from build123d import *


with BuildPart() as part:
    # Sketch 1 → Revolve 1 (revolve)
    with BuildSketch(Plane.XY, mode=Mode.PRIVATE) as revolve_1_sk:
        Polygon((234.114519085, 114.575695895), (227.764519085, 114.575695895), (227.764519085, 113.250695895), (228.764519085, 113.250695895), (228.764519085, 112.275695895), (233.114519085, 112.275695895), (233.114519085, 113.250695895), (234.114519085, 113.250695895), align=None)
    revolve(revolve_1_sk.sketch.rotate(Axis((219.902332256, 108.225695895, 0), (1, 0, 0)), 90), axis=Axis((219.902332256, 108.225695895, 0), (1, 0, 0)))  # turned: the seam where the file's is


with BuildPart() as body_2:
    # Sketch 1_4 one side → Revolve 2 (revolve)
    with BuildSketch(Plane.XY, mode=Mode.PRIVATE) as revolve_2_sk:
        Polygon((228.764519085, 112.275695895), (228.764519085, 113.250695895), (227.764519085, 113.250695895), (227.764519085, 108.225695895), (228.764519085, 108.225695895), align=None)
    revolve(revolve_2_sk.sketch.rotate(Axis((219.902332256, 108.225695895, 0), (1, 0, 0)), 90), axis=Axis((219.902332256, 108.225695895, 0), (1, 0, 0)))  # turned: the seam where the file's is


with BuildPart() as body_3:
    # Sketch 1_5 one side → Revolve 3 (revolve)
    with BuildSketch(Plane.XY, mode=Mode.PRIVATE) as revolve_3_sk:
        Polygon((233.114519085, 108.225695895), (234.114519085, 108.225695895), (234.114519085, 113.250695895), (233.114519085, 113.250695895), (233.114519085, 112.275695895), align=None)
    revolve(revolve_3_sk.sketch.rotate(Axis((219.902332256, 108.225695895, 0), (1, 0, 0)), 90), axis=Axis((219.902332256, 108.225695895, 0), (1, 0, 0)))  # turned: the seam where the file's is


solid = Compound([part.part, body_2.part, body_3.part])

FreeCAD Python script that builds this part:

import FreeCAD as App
import Part
import Sketcher
from FreeCAD import Vector
Q = App.Units.Quantity

doc = App.newDocument("Part")
body = doc.addObject("PartDesign::Body", "Body")

# Sketch on XY plane
sketch1 = body.newObject("Sketcher::SketchObject", "Sketch")
sketch1.AttachmentSupport = (doc.getObject("XY_Plane"), [""])
sketch1.MapMode = "FlatFace"
sketch1.addGeometry(Part.LineSegment(Vector(234.1, 114.6, 0), Vector(227.8, 114.6, 0)), False)
sketch1.addGeometry(Part.LineSegment(Vector(227.8, 114.6, 0), Vector(227.8, 113.3, 0)), False)
sketch1.addGeometry(Part.LineSegment(Vector(227.8, 113.3, 0), Vector(228.8, 113.3, 0)), False)
sketch1.addGeometry(Part.LineSegment(Vector(228.8, 113.3, 0), Vector(228.8, 112.3, 0)), False)
sketch1.addGeometry(Part.LineSegment(Vector(228.8, 112.3, 0), Vector(233.1, 112.3, 0)), False)
sketch1.addGeometry(Part.LineSegment(Vector(233.1, 112.3, 0), Vector(233.1, 113.3, 0)), False)
sketch1.addGeometry(Part.LineSegment(Vector(233.1, 113.3, 0), Vector(234.1, 113.3, 0)), False)
sketch1.addGeometry(Part.LineSegment(Vector(234.1, 113.3, 0), Vector(234.1, 114.6, 0)), False)
sketch1.addGeometry(Part.LineSegment(Vector(227.8, 108.2, 0), Vector(234.1, 108.2, 0)), True)  # axis
sketch1.addConstraint(Sketcher.Constraint("Coincident", 0, 2, 1, 1))
sketch1.addConstraint(Sketcher.Constraint("Coincident", 1, 2, 2, 1))
sketch1.addConstraint(Sketcher.Constraint("Coincident", 2, 2, 3, 1))
sketch1.addConstraint(Sketcher.Constraint("Coincident", 3, 2, 4, 1))
sketch1.addConstraint(Sketcher.Constraint("Coincident", 4, 2, 5, 1))
sketch1.addConstraint(Sketcher.Constraint("Coincident", 5, 2, 6, 1))
sketch1.addConstraint(Sketcher.Constraint("Coincident", 6, 2, 7, 1))
sketch1.addConstraint(Sketcher.Constraint("Coincident", 7, 2, 0, 1))
sketch1.addConstraint(Sketcher.Constraint("Horizontal", 0))
sketch1.addConstraint(Sketcher.Constraint("Vertical", 1))
sketch1.addConstraint(Sketcher.Constraint("Horizontal", 2))
sketch1.addConstraint(Sketcher.Constraint("Vertical", 3))
sketch1.addConstraint(Sketcher.Constraint("Horizontal", 4))
sketch1.addConstraint(Sketcher.Constraint("Vertical", 5))
sketch1.addConstraint(Sketcher.Constraint("Horizontal", 6))
sketch1.addConstraint(Sketcher.Constraint("Vertical", 7))
sketch1.addConstraint(Sketcher.Constraint("Horizontal", 8))
sketch1.addConstraint(Sketcher.Constraint("Horizontal", 2, 2, 5, 2))
sketch1.addConstraint(Sketcher.Constraint("Vertical", 1, 2, 8, 1))
sketch1.addConstraint(Sketcher.Constraint("Vertical", 7, 2, 8, 2))
sketch1.addConstraint(Sketcher.Constraint("Equal", 2, 6))
sketch1.addConstraint(Sketcher.Constraint("DistanceX", 2, 1, 2, 2, Q("1 mm")))
sketch1.addConstraint(Sketcher.Constraint("DistanceX", 0, 2, 0, 1, Q("6.35 mm")))
sketch1.addConstraint(Sketcher.Constraint("DistanceY", 3, 2, 0, 2, Q("2.3 mm")))
sketch1.addConstraint(Sketcher.Constraint("DistanceY", 1, 2, 1, 1, Q("1.325 mm")))
sketch1.addConstraint(Sketcher.Constraint("DistanceY", 8, 1, 3, 2, Q("4.05 mm")))
sketch1.addConstraint(Sketcher.Constraint("DistanceX", -1, 1, 0, 2, Q("227.764519 mm")))
sketch1.addConstraint(Sketcher.Constraint("DistanceY", -1, 1, 0, 2, Q("114.575696 mm")))
revolution = body.newObject("PartDesign::Revolution", "Revolution")
revolution.Profile = sketch1
revolution.ReferenceAxis = (sketch1, ["Axis0"])
revolution.Angle = 360
body2 = doc.addObject("PartDesign::Body", "Body001")

# Sketch on XY plane
sketch2 = body2.newObject("Sketcher::SketchObject", "Sketch001")
sketch2.AttachmentSupport = (doc.getObject("XY_Plane001"), [""])
sketch2.MapMode = "FlatFace"
sketch2.addGeometry(Part.LineSegment(Vector(228.8, 113.3, 0), Vector(227.8, 113.3, 0)), False)
sketch2.addGeometry(Part.LineSegment(Vector(227.8, 113.3, 0), Vector(227.8, 108.2, 0)), False)
sketch2.addGeometry(Part.LineSegment(Vector(227.8, 108.2, 0), Vector(228.8, 108.2, 0)), False)
sketch2.addGeometry(Part.LineSegment(Vector(228.8, 108.2, 0), Vector(228.8, 113.3, 0)), False)
sketch2.addGeometry(Part.LineSegment(Vector(227.8, 108.2, 0), Vector(228.8, 108.2, 0)), True)  # axis
sketch2.addConstraint(Sketcher.Constraint("Coincident", 0, 2, 1, 1))
sketch2.addConstraint(Sketcher.Constraint("Coincident", 1, 2, 2, 1))
sketch2.addConstraint(Sketcher.Constraint("Coincident", 2, 2, 3, 1))
sketch2.addConstraint(Sketcher.Constraint("Coincident", 3, 2, 0, 1))
sketch2.addConstraint(Sketcher.Constraint("Horizontal", 0))
sketch2.addConstraint(Sketcher.Constraint("Vertical", 1))
sketch2.addConstraint(Sketcher.Constraint("Horizontal", 2))
sketch2.addConstraint(Sketcher.Constraint("Vertical", 3))
sketch2.addConstraint(Sketcher.Constraint("Horizontal", 4))
sketch2.addConstraint(Sketcher.Constraint("Coincident", 4, 1, 1, 2))
sketch2.addConstraint(Sketcher.Constraint("Vertical", 3, 2, 4, 2))
sketch2.addConstraint(Sketcher.Constraint("DistanceX", 0, 2, 0, 1, Q("1 mm")))
sketch2.addConstraint(Sketcher.Constraint("DistanceY", 1, 2, 1, 1, Q("5.025 mm")))
sketch2.addConstraint(Sketcher.Constraint("DistanceX", -1, 1, 0, 2, Q("227.764519 mm")))
sketch2.addConstraint(Sketcher.Constraint("DistanceY", -1, 1, 0, 2, Q("113.250696 mm")))
revolution2 = body2.newObject("PartDesign::Revolution", "Revolution001")
revolution2.Profile = sketch2
revolution2.ReferenceAxis = (sketch2, ["Axis0"])
revolution2.Angle = 360
body3 = doc.addObject("PartDesign::Body", "Body002")

# Sketch on XY plane
sketch3 = body3.newObject("Sketcher::SketchObject", "Sketch002")
sketch3.AttachmentSupport = (doc.getObject("XY_Plane002"), [""])
sketch3.MapMode = "FlatFace"
sketch3.addGeometry(Part.LineSegment(Vector(233.1, 108.2, 0), Vector(234.1, 108.2, 0)), False)
sketch3.addGeometry(Part.LineSegment(Vector(234.1, 108.2, 0), Vector(234.1, 113.3, 0)), False)
sketch3.addGeometry(Part.LineSegment(Vector(234.1, 113.3, 0), Vector(233.1, 113.3, 0)), False)
sketch3.addGeometry(Part.LineSegment(Vector(233.1, 113.3, 0), Vector(233.1, 108.2, 0)), False)
sketch3.addGeometry(Part.LineSegment(Vector(233.1, 108.2, 0), Vector(234.1, 108.2, 0)), True)  # axis
sketch3.addConstraint(Sketcher.Constraint("Coincident", 0, 2, 1, 1))
sketch3.addConstraint(Sketcher.Constraint("Coincident", 1, 2, 2, 1))
sketch3.addConstraint(Sketcher.Constraint("Coincident", 2, 2, 3, 1))
sketch3.addConstraint(Sketcher.Constraint("Coincident", 3, 2, 0, 1))
sketch3.addConstraint(Sketcher.Constraint("Horizontal", 0))
sketch3.addConstraint(Sketcher.Constraint("Vertical", 1))
sketch3.addConstraint(Sketcher.Constraint("Horizontal", 2))
sketch3.addConstraint(Sketcher.Constraint("Vertical", 3))
sketch3.addConstraint(Sketcher.Constraint("Horizontal", 4))
sketch3.addConstraint(Sketcher.Constraint("Coincident", 4, 1, 3, 2))
sketch3.addConstraint(Sketcher.Constraint("Vertical", 1, 2, 4, 2))
sketch3.addConstraint(Sketcher.Constraint("DistanceX", 0, 1, 0, 2, Q("1 mm")))
sketch3.addConstraint(Sketcher.Constraint("DistanceY", 1, 1, 1, 2, Q("5.025 mm")))
sketch3.addConstraint(Sketcher.Constraint("DistanceX", -1, 1, 0, 2, Q("234.114519 mm")))
sketch3.addConstraint(Sketcher.Constraint("DistanceY", -1, 1, 0, 2, Q("108.225696 mm")))
revolution3 = body3.newObject("PartDesign::Revolution", "Revolution002")
revolution3.Profile = sketch3
revolution3.ReferenceAxis = (sketch3, ["Axis0"])
revolution3.Angle = 360

doc.recompute()
